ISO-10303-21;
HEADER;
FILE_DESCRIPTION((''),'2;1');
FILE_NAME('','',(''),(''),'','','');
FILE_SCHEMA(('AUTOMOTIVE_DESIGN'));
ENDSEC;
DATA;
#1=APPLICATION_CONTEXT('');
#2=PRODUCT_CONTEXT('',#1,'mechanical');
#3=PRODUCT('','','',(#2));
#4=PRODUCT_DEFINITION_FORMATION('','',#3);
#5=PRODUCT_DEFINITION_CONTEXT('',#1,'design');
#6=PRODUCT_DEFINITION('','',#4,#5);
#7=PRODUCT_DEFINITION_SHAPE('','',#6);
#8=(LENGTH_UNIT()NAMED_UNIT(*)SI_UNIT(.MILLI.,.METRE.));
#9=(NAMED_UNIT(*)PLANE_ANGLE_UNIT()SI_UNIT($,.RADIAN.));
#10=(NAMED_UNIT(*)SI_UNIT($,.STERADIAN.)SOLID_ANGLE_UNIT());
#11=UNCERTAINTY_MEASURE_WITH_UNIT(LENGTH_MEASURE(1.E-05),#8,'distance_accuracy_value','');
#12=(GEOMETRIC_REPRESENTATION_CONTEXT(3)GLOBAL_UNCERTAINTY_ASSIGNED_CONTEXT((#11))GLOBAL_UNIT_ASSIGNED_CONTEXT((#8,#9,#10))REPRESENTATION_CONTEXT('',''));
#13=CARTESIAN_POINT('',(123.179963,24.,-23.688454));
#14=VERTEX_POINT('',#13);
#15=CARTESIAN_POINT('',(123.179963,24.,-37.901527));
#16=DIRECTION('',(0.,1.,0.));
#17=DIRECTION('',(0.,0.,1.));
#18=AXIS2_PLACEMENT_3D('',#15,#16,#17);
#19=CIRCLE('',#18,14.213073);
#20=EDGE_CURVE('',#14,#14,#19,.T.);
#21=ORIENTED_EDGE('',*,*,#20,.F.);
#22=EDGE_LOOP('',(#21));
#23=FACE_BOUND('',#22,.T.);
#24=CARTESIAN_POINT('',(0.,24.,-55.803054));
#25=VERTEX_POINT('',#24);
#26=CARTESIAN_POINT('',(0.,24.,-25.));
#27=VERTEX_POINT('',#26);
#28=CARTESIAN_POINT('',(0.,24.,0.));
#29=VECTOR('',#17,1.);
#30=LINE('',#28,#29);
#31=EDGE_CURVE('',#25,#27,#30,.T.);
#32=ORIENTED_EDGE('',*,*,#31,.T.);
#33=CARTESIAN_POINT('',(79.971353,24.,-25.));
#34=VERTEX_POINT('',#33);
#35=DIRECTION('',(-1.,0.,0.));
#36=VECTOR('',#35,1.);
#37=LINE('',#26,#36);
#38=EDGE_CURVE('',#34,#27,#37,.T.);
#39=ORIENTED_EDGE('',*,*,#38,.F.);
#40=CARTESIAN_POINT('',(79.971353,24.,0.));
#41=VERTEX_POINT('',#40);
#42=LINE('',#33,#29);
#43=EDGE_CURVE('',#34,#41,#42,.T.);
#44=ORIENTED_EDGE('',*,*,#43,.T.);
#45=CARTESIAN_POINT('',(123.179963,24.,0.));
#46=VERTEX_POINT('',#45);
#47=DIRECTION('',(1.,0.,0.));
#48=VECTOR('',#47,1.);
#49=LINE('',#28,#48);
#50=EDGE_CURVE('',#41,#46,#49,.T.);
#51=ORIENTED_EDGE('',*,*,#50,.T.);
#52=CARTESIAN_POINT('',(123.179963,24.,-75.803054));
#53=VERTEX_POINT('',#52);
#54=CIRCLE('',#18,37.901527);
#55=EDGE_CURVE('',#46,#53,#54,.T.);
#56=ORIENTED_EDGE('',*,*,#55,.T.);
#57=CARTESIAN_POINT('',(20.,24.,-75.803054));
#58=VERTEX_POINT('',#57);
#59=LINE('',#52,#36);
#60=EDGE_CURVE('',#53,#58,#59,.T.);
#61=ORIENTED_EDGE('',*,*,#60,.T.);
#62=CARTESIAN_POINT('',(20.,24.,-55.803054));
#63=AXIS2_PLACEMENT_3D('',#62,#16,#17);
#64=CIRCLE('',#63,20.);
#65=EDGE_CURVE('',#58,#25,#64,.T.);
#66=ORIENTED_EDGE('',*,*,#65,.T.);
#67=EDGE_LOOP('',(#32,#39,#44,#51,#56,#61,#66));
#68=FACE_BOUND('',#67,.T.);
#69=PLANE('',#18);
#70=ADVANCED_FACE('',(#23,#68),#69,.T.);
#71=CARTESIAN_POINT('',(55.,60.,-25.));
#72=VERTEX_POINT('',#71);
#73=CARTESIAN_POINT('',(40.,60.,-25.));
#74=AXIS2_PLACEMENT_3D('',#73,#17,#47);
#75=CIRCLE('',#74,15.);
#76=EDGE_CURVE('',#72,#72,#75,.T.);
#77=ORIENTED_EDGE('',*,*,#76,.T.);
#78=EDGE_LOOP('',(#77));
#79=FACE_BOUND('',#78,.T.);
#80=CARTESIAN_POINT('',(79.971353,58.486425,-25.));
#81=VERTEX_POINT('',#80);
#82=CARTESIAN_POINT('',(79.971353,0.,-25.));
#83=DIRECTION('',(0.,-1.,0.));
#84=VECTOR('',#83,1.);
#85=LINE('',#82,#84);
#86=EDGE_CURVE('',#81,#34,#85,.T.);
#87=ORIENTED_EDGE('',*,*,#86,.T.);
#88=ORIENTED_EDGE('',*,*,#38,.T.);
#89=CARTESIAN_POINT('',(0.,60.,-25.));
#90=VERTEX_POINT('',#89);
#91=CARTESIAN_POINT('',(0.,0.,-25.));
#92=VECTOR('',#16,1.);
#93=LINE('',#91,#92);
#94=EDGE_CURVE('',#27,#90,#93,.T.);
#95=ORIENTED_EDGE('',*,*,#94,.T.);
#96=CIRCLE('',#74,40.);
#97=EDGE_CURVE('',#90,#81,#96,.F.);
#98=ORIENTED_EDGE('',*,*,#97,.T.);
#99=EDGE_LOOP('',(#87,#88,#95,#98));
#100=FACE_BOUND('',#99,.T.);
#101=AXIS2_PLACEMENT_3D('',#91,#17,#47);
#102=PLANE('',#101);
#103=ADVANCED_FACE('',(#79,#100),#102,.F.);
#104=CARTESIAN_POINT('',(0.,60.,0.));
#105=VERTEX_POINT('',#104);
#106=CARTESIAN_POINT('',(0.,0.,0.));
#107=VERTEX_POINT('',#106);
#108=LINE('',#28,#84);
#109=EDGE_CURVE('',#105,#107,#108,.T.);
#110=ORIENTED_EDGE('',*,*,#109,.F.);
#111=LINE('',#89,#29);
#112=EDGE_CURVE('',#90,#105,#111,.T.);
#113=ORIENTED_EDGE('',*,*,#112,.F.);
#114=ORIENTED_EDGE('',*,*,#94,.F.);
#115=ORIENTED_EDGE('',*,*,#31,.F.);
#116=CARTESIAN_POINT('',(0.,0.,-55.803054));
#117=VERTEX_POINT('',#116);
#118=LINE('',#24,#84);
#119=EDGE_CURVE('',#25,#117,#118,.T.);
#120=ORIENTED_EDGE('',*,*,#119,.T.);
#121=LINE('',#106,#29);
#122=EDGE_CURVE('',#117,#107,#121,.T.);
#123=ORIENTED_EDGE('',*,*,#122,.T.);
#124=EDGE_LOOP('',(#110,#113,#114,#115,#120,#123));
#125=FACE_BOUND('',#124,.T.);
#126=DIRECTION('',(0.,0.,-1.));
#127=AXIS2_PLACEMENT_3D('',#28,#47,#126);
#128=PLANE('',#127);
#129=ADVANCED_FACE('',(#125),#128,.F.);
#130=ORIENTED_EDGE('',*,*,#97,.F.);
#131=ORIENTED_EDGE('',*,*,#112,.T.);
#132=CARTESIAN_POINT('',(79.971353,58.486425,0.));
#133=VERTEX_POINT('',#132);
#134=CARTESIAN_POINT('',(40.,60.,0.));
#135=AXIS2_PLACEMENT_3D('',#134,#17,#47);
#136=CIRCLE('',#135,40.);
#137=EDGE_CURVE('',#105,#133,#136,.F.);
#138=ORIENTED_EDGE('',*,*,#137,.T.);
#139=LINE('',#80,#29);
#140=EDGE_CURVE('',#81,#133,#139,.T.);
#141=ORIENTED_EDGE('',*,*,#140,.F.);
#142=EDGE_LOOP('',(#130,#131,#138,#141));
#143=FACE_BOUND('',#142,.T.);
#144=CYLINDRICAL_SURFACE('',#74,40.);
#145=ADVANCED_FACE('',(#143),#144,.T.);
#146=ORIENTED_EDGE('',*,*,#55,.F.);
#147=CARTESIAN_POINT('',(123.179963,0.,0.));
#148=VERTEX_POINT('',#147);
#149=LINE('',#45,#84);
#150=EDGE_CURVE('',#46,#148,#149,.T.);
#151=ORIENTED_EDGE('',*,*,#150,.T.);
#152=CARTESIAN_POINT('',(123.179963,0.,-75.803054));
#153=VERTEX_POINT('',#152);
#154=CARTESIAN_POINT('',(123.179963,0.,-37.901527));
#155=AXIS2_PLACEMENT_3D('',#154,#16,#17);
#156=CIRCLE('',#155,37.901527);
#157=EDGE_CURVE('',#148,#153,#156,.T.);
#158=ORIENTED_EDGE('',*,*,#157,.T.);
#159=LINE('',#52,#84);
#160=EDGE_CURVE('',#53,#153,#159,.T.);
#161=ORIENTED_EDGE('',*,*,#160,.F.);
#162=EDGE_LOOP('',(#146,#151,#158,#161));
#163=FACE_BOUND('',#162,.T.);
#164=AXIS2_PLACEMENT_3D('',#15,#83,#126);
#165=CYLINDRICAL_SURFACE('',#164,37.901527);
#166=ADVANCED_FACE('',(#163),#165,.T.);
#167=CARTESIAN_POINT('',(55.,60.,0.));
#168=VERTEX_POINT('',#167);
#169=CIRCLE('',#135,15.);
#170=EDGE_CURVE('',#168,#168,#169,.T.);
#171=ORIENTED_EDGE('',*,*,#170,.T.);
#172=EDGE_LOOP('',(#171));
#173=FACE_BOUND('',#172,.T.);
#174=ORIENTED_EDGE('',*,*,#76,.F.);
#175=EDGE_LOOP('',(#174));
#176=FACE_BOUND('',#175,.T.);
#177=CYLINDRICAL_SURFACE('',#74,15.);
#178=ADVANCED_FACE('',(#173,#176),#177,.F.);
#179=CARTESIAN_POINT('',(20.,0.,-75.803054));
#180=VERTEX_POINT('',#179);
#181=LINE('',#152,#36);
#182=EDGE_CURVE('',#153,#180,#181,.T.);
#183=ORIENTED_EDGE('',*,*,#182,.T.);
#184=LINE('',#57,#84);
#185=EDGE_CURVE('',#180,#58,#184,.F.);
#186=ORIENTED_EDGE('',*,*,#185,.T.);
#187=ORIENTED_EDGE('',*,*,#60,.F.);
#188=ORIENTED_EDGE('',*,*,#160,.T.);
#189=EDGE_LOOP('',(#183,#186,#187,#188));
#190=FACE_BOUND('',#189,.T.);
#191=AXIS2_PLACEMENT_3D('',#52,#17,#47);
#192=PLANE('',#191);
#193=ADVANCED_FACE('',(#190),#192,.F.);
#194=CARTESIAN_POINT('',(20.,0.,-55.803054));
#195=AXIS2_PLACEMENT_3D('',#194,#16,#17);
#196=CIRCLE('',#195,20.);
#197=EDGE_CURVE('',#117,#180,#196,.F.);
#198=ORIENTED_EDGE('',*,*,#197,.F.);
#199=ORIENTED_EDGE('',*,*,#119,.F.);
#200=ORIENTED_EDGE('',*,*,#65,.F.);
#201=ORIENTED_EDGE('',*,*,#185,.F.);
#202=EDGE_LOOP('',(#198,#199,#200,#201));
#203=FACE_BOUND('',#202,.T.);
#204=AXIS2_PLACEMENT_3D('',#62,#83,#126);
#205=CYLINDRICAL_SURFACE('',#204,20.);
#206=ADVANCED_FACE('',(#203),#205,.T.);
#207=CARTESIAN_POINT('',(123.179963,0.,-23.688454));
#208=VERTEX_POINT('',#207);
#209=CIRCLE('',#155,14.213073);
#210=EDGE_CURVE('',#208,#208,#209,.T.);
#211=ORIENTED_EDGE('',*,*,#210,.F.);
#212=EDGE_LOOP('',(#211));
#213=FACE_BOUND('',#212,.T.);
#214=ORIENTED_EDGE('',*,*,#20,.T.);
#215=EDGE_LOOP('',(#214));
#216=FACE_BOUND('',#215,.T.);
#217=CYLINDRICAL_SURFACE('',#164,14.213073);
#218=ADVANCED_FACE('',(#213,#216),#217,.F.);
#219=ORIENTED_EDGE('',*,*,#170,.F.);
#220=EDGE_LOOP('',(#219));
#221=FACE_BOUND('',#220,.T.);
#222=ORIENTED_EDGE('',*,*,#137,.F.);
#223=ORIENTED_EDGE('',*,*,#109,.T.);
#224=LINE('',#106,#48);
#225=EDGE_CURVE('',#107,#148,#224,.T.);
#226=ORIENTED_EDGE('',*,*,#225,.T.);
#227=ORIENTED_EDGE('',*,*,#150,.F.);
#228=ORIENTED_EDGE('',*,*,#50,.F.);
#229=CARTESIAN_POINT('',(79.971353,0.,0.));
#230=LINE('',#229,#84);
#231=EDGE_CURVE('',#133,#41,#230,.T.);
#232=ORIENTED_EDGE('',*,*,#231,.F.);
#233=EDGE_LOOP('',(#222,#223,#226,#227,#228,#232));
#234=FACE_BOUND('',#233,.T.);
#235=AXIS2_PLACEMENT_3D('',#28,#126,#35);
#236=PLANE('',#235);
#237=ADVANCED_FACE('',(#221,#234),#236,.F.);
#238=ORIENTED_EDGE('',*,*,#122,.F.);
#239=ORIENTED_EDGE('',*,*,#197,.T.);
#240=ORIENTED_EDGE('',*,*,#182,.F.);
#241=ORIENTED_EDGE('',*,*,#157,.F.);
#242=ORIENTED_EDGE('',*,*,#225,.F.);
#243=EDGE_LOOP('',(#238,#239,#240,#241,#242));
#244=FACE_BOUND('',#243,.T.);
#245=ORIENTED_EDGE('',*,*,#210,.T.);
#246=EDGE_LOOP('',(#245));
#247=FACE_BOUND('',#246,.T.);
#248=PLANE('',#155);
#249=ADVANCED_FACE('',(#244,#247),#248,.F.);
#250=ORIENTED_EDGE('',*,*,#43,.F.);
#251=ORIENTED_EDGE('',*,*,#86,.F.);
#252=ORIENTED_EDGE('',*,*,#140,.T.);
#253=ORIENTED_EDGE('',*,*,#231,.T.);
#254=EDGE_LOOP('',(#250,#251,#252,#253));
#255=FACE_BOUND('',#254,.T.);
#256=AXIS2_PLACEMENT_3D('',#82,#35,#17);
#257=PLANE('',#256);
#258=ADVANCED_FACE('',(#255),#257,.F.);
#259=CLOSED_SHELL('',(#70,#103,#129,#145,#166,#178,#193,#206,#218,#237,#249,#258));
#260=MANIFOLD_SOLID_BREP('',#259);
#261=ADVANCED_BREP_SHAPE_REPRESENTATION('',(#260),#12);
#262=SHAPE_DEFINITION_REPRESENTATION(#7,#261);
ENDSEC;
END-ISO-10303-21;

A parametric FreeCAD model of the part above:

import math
import FreeCAD as App
import Part
import Sketcher

V = App.Vector


def edges_at(feature, points):
    """Names of the edges that pass closest to the given points."""
    edges = feature.Shape.Edges
    near = lambda p: min(range(len(edges)), key=lambda i: edges[i].distToShape(Part.Vertex(*p))[0])
    return sorted({f"Edge{near(p) + 1}" for p in points})

doc = App.newDocument("Part")
body = doc.addObject("PartDesign::Body", "Body")

sketch1 = body.newObject("Sketcher::SketchObject", "Sketch")
sketch1.AttachmentSupport = (doc.getObject("XZ_Plane"), [""])
sketch1.MapMode = "FlatFace"
sketch1.addGeometry(Part.LineSegment(V(0, -76, 0), V(0, 0, 0)), False)
sketch1.addGeometry(Part.LineSegment(V(0, 0, 0), V(123, 0, 0)), False)
sketch1.addGeometry(Part.ArcOfCircle(Part.Circle(V(123, -38, 0), V(0, 0, 1), 38), math.radians(-90), math.radians(90)), False)
sketch1.addGeometry(Part.LineSegment(V(123, -76, 0), V(0, -76, 0)), False)
sketch1.addGeometry(Part.Circle(V(123, -38, 0), V(0, 0, 1), 14), False)
sketch1.addConstraint(Sketcher.Constraint("Coincident", 0, 2, 1, 1))
sketch1.addConstraint(Sketcher.Constraint("Tangent", 1, 2, 2, 2))
sketch1.addConstraint(Sketcher.Constraint("Tangent", 2, 1, 3, 1))
sketch1.addConstraint(Sketcher.Constraint("Coincident", 3, 2, 0, 1))
sketch1.addConstraint(Sketcher.Constraint("Vertical", 0))
sketch1.addConstraint(Sketcher.Constraint("Horizontal", 1))
sketch1.addConstraint(Sketcher.Constraint("Horizontal", 3))
sketch1.addConstraint(Sketcher.Constraint("Coincident", 0, 2, -1, 1))
sketch1.addConstraint(Sketcher.Constraint("Coincident", 4, 3, 2, 3))
sketch1.addConstraint(Sketcher.Constraint("Diameter", 4, 28.426145))
sketch1.addConstraint(Sketcher.Constraint("Radius", 2, 37.901527))
sketch1.addConstraint(Sketcher.Constraint("DistanceX", 1, 1, 1, 2, 123.179963))
pad1 = body.newObject("PartDesign::Pad", "Pad")
pad1.Profile = sketch1
pad1.Length = 24
pad1.Reversed = True

sketch2 = body.newObject("Sketcher::SketchObject", "Sketch001")
sketch2.AttachmentSupport = (doc.getObject("XY_Plane"), [""])
sketch2.MapMode = "FlatFace"
sketch2.addGeometry(Part.LineSegment(V(0, 60, 0), V(0, 24, 0)), False)
sketch2.addGeometry(Part.LineSegment(V(0, 24, 0), V(80, 24, 0)), False)
sketch2.addGeometry(Part.LineSegment(V(80, 24, 0), V(80, 58, 0)), False)
sketch2.addGeometry(Part.ArcOfCircle(Part.Circle(V(40, 60, 0), V(0, 0, 1), 40), math.radians(-2), math.radians(180)), False)
sketch2.addGeometry(Part.Circle(V(40, 60, 0), V(0, 0, 1), 15), False)
sketch2.addConstraint(Sketcher.Constraint("Coincident", 0, 2, 1, 1))
sketch2.addConstraint(Sketcher.Constraint("Coincident", 1, 2, 2, 1))
sketch2.addConstraint(Sketcher.Constraint("Coincident", 2, 2, 3, 1))
sketch2.addConstraint(Sketcher.Constraint("Tangent", 3, 2, 0, 1))
sketch2.addConstraint(Sketcher.Constraint("Vertical", 0))
sketch2.addConstraint(Sketcher.Constraint("Horizontal", 1))
sketch2.addConstraint(Sketcher.Constraint("Vertical", 2))
sketch2.addConstraint(Sketcher.Constraint("Coincident", 4, 3, 3, 3))
sketch2.addConstraint(Sketcher.Constraint("PointOnObject", 0, 2, -2))
sketch2.addConstraint(Sketcher.Constraint("Diameter", 4, 30.0))
sketch2.addConstraint(Sketcher.Constraint("Radius", 3, 40.0))
sketch2.addConstraint(Sketcher.Constraint("DistanceY", 0, 2, 0, 1, 36.0))
sketch2.addConstraint(Sketcher.Constraint("DistanceY", -1, 1, 3, 3, 60.0))
sketch2.addConstraint(Sketcher.Constraint("DistanceX", 1, 1, 1, 2, 79.971353))
pad2 = body.newObject("PartDesign::Pad", "Pad001")
pad2.Profile = sketch2
pad2.Length = 25
pad2.Reversed = True
doc.recompute()

fillet = body.newObject("PartDesign::Fillet", "Fillet")
fillet.Base = (pad2, edges_at(pad2, [(0, 12, -75.803)]))
fillet.Radius = 20

doc.recompute()
